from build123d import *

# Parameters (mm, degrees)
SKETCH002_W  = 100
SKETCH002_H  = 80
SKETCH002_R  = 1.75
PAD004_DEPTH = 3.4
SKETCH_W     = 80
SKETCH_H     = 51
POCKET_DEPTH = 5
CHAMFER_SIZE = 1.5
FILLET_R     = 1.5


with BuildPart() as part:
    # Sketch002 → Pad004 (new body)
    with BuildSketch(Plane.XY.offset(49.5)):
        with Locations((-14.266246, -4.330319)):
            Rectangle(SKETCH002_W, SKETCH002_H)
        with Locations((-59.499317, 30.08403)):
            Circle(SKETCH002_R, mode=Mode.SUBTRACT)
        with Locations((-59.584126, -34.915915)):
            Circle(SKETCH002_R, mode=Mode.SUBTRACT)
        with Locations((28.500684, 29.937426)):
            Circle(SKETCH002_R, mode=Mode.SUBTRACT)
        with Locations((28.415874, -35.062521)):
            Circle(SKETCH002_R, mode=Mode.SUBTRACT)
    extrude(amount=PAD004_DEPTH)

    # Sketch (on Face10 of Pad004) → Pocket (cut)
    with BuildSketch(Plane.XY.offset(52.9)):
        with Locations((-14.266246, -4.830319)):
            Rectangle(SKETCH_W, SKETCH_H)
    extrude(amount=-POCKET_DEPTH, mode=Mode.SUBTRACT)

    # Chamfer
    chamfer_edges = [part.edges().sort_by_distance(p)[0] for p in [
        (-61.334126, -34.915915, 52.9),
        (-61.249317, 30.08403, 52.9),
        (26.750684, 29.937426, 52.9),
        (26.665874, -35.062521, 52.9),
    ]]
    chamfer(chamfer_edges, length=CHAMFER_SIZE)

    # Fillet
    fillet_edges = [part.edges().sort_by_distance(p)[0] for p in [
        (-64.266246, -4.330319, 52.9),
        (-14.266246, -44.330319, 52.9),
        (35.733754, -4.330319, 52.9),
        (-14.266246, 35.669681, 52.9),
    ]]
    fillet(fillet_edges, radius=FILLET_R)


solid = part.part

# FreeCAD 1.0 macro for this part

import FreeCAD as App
import Part
import Sketcher


def edges_at(feature, points):
    """Names of the edges that pass closest to the given points."""
    edges = feature.Shape.Edges
    near = lambda p: min(range(len(edges)), key=lambda i: edges[i].distToShape(Part.Vertex(*p))[0])
    return sorted({f"Edge{near(p) + 1}" for p in points})

doc = App.newDocument("Part")
body = doc.addObject("PartDesign::Body", "Body")

# Sketch on XY plane
sketch1 = body.newObject("Sketcher::SketchObject", "Sketch")
sketch1.AttachmentSupport = (doc.getObject("XY_Plane"), [""])
sketch1.MapMode = "FlatFace"
sketch1.AttachmentOffset = App.Placement(App.Vector(0, 0, 49.5), App.Rotation())
sketch1.addGeometry([
    Part.LineSegment(App.Vector(-64.3, 35.7, 0), App.Vector(-64.3, -44.3, 0)),  # 0
    Part.LineSegment(App.Vector(-64.3, -44.3, 0), App.Vector(35.7, -44.3, 0)),  # 1
    Part.LineSegment(App.Vector(35.7, -44.3, 0), App.Vector(35.7, 35.7, 0)),  # 2
    Part.LineSegment(App.Vector(35.7, 35.7, 0), App.Vector(-64.3, 35.7, 0)),  # 3
    Part.Circle(App.Vector(-59.6, -34.9, 0), App.Vector(0, 0, 1), 1.8),  # 4
    Part.Circle(App.Vector(28.4, -35.1, 0), App.Vector(0, 0, 1), 1.8),  # 5
    Part.Circle(App.Vector(-59.5, 30.1, 0), App.Vector(0, 0, 1), 1.8),  # 6
    Part.Circle(App.Vector(28.5, 29.9, 0), App.Vector(0, 0, 1), 1.8),  # 7
], False)
sketch1.addConstraint([
    Sketcher.Constraint("Coincident", 0, 2, 1, 1),
    Sketcher.Constraint("Coincident", 1, 2, 2, 1),
    Sketcher.Constraint("Coincident", 2, 2, 3, 1),
    Sketcher.Constraint("Coincident", 3, 2, 0, 1),
    Sketcher.Constraint("Vertical", 0),
    Sketcher.Constraint("Horizontal", 1),
    Sketcher.Constraint("Vertical", 2),
    Sketcher.Constraint("Horizontal", 3),
    Sketcher.Constraint("Equal", 4, 5),
    Sketcher.Constraint("Equal", 5, 6),
    Sketcher.Constraint("Equal", 6, 7),
    Sketcher.Constraint("Diameter", 4, 3.5),
    Sketcher.Constraint("DistanceX", 1, 1, 1, 2, 100.0),
    Sketcher.Constraint("DistanceY", 0, 2, 0, 1, 80.0),
    Sketcher.Constraint("DistanceX", 4, 3, 5, 3, 88.0),
    Sketcher.Constraint("DistanceX", 6, 3, 7, 3, 88.000001),
    Sketcher.Constraint("DistanceY", 0, 2, 5, 3, 9.267798),
    Sketcher.Constraint("DistanceY", 5, 3, -1, 1, 35.062521),
    Sketcher.Constraint("DistanceY", -1, 1, 6, 3, 30.08403),
    Sketcher.Constraint("DistanceX", 4, 3, 6, 3, 0.084809),
    Sketcher.Constraint("DistanceY", 4, 3, 7, 3, 64.853341),
    Sketcher.Constraint("DistanceX", 0, 2, 4, 3, 4.68212),
    Sketcher.Constraint("DistanceX", 4, 3, -1, 1, 59.584126),
    Sketcher.Constraint("DistanceY", 4, 3, -1, 1, 34.915915),
])
pad1 = body.newObject("PartDesign::Pad", "Pad")
pad1.Profile = sketch1
pad1.Length = 3.4

# Sketch on XY plane
sketch2 = body.newObject("Sketcher::SketchObject", "Sketch001")
sketch2.AttachmentSupport = (doc.getObject("XY_Plane"), [""])
sketch2.MapMode = "FlatFace"
sketch2.AttachmentOffset = App.Placement(App.Vector(0, 0, 52.9), App.Rotation())
sketch2.addGeometry([
    Part.LineSegment(App.Vector(-54, 21, 0), App.Vector(-54, -30, 0)),
    Part.LineSegment(App.Vector(-54, -30, 0), App.Vector(26, -30, 0)),
    Part.LineSegment(App.Vector(26, -30, 0), App.Vector(26, 21, 0)),
    Part.LineSegment(App.Vector(26, 21, 0), App.Vector(-54, 21, 0)),
], False)
sketch2.addConstraint([
    Sketcher.Constraint("Coincident", 0, 2, 1, 1),
    Sketcher.Constraint("Coincident", 1, 2, 2, 1),
    Sketcher.Constraint("Coincident", 2, 2, 3, 1),
    Sketcher.Constraint("Coincident", 3, 2, 0, 1),
    Sketcher.Constraint("Vertical", 0),
    Sketcher.Constraint("Horizontal", 1),
    Sketcher.Constraint("Vertical", 2),
    Sketcher.Constraint("Horizontal", 3),
    Sketcher.Constraint("DistanceX", 1, 1, 1, 2, 80.0),
    Sketcher.Constraint("DistanceY", 0, 2, 0, 1, 51.0),
    Sketcher.Constraint("DistanceY", 0, 2, -1, 1, 30.330319),
    Sketcher.Constraint("DistanceX", 0, 2, -1, 1, 54.266246),
])
pocket1 = body.newObject("PartDesign::Pocket", "Pocket")
pocket1.Profile = sketch2
pocket1.Length = 5
doc.recompute()

chamfer = body.newObject("PartDesign::Chamfer", "Chamfer")
chamfer.Base = (pocket1, edges_at(pocket1, [
    (-61.334, -34.916, 52.9),
    (-61.249, 30.084, 52.9),
    (26.751, 29.937, 52.9),
    (26.666, -35.063, 52.9),
]))
chamfer.Size = 1.5
doc.recompute()

fillet = body.newObject("PartDesign::Fillet", "Fillet")
fillet.Base = (chamfer, edges_at(chamfer, [
    (-64.266, -4.33, 52.9),
    (-14.266, -44.33, 52.9),
    (35.734, -4.33, 52.9),
    (-14.266, 35.67, 52.9),
]))
fillet.Radius = 1.5

doc.recompute()
